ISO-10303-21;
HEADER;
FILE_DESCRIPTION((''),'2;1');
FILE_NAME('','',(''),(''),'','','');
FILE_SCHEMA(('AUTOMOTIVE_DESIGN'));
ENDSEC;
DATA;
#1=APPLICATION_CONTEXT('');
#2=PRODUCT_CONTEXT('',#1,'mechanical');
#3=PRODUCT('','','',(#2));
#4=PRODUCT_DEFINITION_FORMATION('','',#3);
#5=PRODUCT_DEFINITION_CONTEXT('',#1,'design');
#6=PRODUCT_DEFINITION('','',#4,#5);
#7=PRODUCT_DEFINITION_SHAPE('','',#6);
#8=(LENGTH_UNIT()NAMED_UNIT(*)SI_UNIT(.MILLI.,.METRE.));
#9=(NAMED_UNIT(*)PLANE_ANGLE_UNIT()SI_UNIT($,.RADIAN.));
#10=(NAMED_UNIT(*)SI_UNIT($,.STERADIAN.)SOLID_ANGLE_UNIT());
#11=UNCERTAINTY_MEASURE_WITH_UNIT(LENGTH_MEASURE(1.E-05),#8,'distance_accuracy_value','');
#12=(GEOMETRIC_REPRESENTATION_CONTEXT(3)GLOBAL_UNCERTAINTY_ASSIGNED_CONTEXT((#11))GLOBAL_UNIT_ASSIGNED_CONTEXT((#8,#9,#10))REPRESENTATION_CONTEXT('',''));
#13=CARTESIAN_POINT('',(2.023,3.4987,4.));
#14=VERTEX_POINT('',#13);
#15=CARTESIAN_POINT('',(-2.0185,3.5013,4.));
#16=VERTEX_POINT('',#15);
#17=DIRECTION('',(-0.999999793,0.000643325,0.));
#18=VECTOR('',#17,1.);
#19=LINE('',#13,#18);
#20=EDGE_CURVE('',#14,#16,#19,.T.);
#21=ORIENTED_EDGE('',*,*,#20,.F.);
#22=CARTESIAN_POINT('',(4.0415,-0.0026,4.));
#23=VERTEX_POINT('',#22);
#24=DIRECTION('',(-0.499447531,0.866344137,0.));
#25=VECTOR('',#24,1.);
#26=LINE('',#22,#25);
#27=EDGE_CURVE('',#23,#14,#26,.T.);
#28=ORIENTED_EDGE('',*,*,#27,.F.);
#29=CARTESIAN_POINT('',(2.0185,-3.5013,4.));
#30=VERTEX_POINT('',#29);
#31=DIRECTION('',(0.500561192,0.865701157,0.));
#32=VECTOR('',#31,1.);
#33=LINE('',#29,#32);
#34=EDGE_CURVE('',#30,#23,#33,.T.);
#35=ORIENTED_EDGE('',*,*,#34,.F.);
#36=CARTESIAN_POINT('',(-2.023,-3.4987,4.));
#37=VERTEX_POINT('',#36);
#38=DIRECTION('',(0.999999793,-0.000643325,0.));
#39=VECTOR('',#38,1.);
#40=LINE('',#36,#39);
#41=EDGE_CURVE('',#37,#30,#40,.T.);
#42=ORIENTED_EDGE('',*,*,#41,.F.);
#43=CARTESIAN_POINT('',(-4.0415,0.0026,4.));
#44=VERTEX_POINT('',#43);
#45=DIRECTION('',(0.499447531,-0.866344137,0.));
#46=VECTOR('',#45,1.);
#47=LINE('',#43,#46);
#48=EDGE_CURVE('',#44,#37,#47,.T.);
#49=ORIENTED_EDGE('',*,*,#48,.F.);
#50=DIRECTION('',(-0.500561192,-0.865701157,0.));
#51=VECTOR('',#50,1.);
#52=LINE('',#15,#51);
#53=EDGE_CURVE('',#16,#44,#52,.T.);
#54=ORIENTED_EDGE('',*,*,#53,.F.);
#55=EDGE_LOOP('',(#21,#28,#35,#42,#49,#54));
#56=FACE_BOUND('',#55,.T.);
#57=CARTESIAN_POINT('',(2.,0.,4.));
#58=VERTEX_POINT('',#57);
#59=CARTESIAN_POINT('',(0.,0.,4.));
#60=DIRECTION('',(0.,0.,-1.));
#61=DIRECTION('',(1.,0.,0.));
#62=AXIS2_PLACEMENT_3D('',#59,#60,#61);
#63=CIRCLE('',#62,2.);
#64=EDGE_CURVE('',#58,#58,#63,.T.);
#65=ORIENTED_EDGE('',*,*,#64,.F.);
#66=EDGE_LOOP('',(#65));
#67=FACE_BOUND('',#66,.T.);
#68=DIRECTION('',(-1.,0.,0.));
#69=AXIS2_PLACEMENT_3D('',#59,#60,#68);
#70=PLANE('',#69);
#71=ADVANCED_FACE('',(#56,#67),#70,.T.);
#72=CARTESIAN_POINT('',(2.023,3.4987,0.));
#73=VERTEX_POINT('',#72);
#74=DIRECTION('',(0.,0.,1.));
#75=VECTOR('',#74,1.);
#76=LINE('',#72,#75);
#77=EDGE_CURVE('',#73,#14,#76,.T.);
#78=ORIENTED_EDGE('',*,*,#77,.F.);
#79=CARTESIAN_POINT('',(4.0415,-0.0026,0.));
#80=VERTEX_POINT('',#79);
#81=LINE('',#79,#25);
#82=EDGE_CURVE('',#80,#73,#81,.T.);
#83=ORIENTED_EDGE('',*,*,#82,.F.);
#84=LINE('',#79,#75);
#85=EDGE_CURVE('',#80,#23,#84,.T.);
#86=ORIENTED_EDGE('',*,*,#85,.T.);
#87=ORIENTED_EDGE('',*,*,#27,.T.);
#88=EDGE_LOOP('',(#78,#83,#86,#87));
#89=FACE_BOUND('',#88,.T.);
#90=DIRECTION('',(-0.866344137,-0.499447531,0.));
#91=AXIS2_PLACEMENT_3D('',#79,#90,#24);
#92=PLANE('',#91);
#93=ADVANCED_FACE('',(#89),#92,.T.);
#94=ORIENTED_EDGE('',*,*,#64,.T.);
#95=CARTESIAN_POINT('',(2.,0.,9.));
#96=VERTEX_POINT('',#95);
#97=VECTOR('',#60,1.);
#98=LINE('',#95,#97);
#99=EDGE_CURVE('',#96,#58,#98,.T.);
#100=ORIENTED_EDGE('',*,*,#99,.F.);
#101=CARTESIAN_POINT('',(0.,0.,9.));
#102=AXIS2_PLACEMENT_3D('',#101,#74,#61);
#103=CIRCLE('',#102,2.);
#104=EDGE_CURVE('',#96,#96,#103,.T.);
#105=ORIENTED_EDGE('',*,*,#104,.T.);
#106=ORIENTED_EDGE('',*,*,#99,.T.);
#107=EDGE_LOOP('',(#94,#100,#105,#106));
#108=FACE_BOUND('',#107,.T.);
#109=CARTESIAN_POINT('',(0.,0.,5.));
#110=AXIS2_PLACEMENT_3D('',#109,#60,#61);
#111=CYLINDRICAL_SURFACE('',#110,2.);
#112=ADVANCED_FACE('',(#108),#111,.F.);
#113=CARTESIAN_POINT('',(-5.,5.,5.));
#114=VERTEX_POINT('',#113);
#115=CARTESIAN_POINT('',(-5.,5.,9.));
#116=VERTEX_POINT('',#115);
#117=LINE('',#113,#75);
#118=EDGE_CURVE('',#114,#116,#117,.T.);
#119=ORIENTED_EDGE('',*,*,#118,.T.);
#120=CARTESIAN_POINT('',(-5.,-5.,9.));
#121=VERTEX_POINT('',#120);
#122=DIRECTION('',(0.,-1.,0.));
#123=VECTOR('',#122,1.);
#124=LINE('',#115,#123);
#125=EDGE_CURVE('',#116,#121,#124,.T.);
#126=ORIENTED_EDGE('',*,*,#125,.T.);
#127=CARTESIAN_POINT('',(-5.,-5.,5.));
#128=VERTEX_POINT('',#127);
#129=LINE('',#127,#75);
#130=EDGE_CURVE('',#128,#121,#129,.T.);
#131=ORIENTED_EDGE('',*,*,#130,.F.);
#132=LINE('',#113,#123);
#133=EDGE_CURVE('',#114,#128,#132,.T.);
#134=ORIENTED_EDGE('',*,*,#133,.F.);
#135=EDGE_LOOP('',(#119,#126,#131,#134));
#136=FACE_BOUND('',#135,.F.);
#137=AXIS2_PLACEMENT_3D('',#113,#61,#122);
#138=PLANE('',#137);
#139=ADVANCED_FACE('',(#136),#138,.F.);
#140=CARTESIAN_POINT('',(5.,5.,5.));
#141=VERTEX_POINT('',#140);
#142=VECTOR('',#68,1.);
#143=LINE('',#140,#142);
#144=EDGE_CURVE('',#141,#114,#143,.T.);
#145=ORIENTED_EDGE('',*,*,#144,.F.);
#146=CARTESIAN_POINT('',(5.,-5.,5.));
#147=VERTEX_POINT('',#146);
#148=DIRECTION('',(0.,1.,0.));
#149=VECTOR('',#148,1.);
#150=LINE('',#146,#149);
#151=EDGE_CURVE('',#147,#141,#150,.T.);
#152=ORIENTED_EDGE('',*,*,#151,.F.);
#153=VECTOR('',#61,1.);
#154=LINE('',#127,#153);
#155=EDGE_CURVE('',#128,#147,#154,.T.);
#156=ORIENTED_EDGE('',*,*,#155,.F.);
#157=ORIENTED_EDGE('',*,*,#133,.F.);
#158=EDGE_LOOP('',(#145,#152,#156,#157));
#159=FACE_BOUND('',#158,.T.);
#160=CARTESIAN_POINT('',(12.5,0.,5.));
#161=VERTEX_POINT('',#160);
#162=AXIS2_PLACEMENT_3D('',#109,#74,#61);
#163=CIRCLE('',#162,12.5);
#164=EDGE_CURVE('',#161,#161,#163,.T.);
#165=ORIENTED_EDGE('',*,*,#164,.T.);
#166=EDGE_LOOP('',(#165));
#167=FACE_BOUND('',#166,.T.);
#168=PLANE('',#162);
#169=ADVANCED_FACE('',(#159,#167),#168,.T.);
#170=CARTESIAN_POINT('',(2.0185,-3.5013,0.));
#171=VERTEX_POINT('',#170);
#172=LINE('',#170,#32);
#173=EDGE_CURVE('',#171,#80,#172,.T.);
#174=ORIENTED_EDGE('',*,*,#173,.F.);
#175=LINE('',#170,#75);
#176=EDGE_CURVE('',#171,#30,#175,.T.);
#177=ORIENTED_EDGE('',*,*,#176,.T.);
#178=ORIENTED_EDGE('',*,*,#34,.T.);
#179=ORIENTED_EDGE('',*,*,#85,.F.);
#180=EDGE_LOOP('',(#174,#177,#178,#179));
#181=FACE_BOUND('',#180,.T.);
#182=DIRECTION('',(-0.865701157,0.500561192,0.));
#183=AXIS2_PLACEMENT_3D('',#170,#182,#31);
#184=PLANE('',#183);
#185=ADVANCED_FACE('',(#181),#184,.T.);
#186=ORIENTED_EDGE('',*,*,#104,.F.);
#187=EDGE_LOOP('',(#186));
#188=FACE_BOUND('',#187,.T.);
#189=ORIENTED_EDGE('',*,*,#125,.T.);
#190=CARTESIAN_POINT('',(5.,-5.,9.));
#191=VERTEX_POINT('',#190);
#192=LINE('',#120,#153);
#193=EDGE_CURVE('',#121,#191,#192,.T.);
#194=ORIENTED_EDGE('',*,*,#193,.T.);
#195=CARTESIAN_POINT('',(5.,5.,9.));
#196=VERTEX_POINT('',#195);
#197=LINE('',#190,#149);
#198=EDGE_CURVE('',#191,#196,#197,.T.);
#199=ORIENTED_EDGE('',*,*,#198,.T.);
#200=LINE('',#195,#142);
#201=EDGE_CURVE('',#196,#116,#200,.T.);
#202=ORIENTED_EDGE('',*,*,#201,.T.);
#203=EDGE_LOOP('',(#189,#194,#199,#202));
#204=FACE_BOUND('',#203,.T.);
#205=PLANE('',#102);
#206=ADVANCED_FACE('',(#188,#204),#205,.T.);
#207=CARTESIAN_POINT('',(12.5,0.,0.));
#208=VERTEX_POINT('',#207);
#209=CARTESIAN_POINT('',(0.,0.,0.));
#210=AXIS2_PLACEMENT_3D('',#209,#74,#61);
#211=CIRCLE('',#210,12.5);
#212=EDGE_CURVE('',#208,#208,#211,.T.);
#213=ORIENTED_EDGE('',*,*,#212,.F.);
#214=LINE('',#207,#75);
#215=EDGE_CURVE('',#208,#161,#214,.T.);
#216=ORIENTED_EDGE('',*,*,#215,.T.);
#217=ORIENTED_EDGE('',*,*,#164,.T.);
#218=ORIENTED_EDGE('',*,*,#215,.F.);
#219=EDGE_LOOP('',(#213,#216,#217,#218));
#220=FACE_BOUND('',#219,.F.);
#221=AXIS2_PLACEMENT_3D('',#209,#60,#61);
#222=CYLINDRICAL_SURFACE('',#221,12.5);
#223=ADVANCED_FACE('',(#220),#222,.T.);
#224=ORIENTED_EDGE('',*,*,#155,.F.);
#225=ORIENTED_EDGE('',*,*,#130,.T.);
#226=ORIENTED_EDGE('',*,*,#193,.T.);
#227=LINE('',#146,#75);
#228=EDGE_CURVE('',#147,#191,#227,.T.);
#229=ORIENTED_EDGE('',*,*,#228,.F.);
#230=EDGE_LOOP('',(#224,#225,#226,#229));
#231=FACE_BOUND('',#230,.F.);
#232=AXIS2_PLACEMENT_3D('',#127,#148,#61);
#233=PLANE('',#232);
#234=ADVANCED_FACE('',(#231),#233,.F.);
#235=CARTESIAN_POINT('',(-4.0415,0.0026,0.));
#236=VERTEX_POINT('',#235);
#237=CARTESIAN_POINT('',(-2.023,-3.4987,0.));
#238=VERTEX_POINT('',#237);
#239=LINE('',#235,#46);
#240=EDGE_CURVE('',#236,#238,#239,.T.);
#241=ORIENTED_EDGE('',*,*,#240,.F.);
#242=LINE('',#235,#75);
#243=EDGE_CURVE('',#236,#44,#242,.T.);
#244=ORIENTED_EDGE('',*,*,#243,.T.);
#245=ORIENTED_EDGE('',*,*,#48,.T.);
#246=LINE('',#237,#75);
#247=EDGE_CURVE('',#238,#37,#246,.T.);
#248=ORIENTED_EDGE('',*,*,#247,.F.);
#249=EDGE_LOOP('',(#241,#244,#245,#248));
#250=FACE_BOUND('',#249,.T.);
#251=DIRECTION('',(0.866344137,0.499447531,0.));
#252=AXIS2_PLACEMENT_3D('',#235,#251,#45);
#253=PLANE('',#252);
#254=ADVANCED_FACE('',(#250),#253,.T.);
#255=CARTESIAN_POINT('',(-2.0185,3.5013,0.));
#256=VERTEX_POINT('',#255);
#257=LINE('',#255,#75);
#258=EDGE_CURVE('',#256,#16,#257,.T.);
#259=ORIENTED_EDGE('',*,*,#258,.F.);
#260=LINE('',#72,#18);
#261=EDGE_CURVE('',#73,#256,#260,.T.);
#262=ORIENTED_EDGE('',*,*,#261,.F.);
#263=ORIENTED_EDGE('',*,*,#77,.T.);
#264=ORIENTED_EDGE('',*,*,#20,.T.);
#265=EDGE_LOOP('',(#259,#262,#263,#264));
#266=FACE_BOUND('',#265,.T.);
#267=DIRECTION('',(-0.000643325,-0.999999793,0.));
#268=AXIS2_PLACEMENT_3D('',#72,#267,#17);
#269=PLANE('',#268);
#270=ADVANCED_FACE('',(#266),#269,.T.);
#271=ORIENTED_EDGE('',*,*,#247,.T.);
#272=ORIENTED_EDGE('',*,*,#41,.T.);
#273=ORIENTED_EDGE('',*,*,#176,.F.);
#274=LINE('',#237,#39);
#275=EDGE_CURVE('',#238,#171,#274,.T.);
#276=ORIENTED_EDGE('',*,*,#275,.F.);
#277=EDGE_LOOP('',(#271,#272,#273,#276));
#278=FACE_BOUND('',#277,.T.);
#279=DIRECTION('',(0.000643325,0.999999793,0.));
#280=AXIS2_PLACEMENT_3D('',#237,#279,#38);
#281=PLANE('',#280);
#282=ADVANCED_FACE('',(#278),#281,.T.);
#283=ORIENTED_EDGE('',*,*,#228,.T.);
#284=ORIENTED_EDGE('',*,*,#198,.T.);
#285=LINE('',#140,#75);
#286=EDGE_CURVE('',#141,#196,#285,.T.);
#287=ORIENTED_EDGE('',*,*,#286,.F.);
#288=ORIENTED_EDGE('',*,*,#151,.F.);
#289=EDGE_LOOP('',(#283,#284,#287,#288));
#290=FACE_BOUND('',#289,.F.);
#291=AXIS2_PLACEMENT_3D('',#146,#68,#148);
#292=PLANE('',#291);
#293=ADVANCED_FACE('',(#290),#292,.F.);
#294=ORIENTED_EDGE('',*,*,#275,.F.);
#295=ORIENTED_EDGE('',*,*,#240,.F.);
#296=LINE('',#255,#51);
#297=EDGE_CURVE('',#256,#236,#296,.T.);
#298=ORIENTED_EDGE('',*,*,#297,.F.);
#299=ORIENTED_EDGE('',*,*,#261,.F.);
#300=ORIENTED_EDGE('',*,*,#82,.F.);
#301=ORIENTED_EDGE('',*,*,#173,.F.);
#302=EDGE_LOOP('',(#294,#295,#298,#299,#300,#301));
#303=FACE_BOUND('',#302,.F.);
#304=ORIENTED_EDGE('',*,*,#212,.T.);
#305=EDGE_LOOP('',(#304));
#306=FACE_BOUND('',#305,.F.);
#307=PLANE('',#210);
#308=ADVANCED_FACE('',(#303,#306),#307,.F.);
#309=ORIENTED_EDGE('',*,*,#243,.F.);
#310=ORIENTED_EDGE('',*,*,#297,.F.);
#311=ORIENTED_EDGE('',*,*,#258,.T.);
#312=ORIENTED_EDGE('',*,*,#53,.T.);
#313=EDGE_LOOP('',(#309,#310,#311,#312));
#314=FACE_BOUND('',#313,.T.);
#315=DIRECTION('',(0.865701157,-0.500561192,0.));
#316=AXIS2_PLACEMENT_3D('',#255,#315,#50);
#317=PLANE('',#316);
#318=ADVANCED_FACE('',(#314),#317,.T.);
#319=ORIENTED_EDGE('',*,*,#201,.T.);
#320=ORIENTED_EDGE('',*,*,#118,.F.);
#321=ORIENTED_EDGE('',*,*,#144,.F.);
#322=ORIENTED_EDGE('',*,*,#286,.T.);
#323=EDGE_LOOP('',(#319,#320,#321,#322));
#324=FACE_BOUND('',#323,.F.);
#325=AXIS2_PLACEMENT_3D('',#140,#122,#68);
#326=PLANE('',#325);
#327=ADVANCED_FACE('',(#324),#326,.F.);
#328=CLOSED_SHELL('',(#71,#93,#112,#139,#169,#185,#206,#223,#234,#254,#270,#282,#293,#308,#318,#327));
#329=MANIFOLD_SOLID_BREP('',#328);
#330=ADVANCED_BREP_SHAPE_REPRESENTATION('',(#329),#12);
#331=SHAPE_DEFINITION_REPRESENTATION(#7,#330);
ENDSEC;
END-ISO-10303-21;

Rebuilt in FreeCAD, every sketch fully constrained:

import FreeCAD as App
import Part
import Sketcher
from FreeCAD import Vector

doc = App.newDocument("Part")
body = doc.addObject("PartDesign::Body", "Body")

# Sketch on XY plane
sketch1 = body.newObject("Sketcher::SketchObject", "Sketch")
sketch1.AttachmentSupport = (doc.getObject("XY_Plane"), [""])
sketch1.MapMode = "FlatFace"
sketch1.addGeometry(Part.Circle(Vector(0, 0, 0), Vector(0, 0, 1), 12.5), False)
sketch1.addConstraint([
    Sketcher.Constraint("Coincident", 0, 3, -1, 1),
    Sketcher.Constraint("Diameter", 0, 25.0),
])
pad1 = body.newObject("PartDesign::Pad", "Pad")
pad1.Profile = sketch1
pad1.Length = 5

# Sketch on XY plane
sketch2 = body.newObject("Sketcher::SketchObject", "Sketch001")
sketch2.AttachmentSupport = (doc.getObject("XY_Plane"), [""])
sketch2.MapMode = "FlatFace"
sketch2.AttachmentOffset = App.Placement(Vector(0, 0, 5), App.Rotation())
sketch2.addGeometry(Part.Circle(Vector(0, 0, 0), Vector(0, 0, 1), 2), False)
sketch2.addConstraint([
    Sketcher.Constraint("Coincident", 0, 3, -1, 1),
    Sketcher.Constraint("Diameter", 0, 4.0),
])
pocket1 = body.newObject("PartDesign::Pocket", "Pocket")
pocket1.Profile = sketch2
pocket1.Length = 5

# Sketch on XY plane
sketch3 = body.newObject("Sketcher::SketchObject", "Sketch002")
sketch3.AttachmentSupport = (doc.getObject("XY_Plane"), [""])
sketch3.MapMode = "FlatFace"
sketch3.AttachmentOffset = App.Placement(Vector(0, 0, 5), App.Rotation())
sketch3.addGeometry([
    Part.LineSegment(Vector(-5, 5, 0), Vector(-5, -5, 0)),  # 0
    Part.LineSegment(Vector(-5, -5, 0), Vector(5, -5, 0)),  # 1
    Part.LineSegment(Vector(5, -5, 0), Vector(5, 5, 0)),  # 2
    Part.LineSegment(Vector(5, 5, 0), Vector(-5, 5, 0)),  # 3
    Part.Circle(Vector(0, 0, 0), Vector(0, 0, 1), 2),  # 4
], False)
sketch3.addConstraint([
    Sketcher.Constraint("Coincident", 0, 2, 1, 1),
    Sketcher.Constraint("Coincident", 1, 2, 2, 1),
    Sketcher.Constraint("Coincident", 2, 2, 3, 1),
    Sketcher.Constraint("Coincident", 3, 2, 0, 1),
    Sketcher.Constraint("Vertical", 0),
    Sketcher.Constraint("Horizontal", 1),
    Sketcher.Constraint("Vertical", 2),
    Sketcher.Constraint("Horizontal", 3),
    Sketcher.Constraint("Coincident", 4, 3, -1, 1),
    Sketcher.Constraint("Symmetric", 0, 2, 2, 2, -1, 1),
    Sketcher.Constraint("Equal", 3, 0),
    Sketcher.Constraint("DistanceX", 1, 1, 1, 2, 10.0),
    Sketcher.Constraint("Diameter", 4, 4.0),
])
pad2 = body.newObject("PartDesign::Pad", "Pad001")
pad2.Profile = sketch3
pad2.Length = 4

# Sketch on XY plane
sketch4 = body.newObject("Sketcher::SketchObject", "Sketch003")
sketch4.AttachmentSupport = (doc.getObject("XY_Plane"), [""])
sketch4.MapMode = "FlatFace"
sketch4.addGeometry([
    Part.LineSegment(Vector(-2.0185, 3.5013, 0), Vector(2.023, 3.4987, 0)),  # 0
    Part.LineSegment(Vector(2.023, 3.4987, 0), Vector(4.0415, -0.0026, 0)),  # 1
    Part.LineSegment(Vector(4.0415, -0.0026, 0), Vector(2.0185, -3.5013, 0)),  # 2
    Part.LineSegment(Vector(2.0185, -3.5013, 0), Vector(-2.023, -3.4987, 0)),  # 3
    Part.LineSegment(Vector(-2.023, -3.4987, 0), Vector(-4.0415, 0.0026, 0)),  # 4
    Part.LineSegment(Vector(-4.0415, 0.0026, 0), Vector(-2.0185, 3.5013, 0)),  # 5
    Part.Circle(Vector(0, 0, 0), Vector(0, 0, 1), 2),  # 6
], False)
sketch4.addConstraint([
    Sketcher.Constraint("Coincident", 0, 2, 1, 1),
    Sketcher.Constraint("Coincident", 1, 2, 2, 1),
    Sketcher.Constraint("Coincident", 2, 2, 3, 1),
    Sketcher.Constraint("Coincident", 3, 2, 4, 1),
    Sketcher.Constraint("Coincident", 4, 2, 5, 1),
    Sketcher.Constraint("Coincident", 5, 2, 0, 1),
    Sketcher.Constraint("Coincident", 6, 3, -1, 1),
    Sketcher.Constraint("Symmetric", 0, 2, 3, 2, -1, 1),
    Sketcher.Constraint("Symmetric", 1, 2, 4, 2, -1, 1),
    Sketcher.Constraint("Symmetric", 2, 2, 5, 2, -1, 1),
    Sketcher.Constraint("Equal", 0, 1),
    Sketcher.Constraint("Equal", 1, 2),
    Sketcher.Constraint("Diameter", 6, 4.0),
    Sketcher.Constraint("DistanceY", 2, 2, 0, 2, 7.0),
    Sketcher.Constraint("DistanceX", 4, 2, 2, 2, 6.06),
    Sketcher.Constraint("DistanceX", -1, 1, 0, 2, 2.023),
    Sketcher.Constraint("DistanceY", 3, 2, 1, 2, 3.496),
])
pocket2 = body.newObject("PartDesign::Pocket", "Pocket001")
pocket2.Profile = sketch4
pocket2.Length = 4
pocket2.Reversed = True

doc.recompute()
